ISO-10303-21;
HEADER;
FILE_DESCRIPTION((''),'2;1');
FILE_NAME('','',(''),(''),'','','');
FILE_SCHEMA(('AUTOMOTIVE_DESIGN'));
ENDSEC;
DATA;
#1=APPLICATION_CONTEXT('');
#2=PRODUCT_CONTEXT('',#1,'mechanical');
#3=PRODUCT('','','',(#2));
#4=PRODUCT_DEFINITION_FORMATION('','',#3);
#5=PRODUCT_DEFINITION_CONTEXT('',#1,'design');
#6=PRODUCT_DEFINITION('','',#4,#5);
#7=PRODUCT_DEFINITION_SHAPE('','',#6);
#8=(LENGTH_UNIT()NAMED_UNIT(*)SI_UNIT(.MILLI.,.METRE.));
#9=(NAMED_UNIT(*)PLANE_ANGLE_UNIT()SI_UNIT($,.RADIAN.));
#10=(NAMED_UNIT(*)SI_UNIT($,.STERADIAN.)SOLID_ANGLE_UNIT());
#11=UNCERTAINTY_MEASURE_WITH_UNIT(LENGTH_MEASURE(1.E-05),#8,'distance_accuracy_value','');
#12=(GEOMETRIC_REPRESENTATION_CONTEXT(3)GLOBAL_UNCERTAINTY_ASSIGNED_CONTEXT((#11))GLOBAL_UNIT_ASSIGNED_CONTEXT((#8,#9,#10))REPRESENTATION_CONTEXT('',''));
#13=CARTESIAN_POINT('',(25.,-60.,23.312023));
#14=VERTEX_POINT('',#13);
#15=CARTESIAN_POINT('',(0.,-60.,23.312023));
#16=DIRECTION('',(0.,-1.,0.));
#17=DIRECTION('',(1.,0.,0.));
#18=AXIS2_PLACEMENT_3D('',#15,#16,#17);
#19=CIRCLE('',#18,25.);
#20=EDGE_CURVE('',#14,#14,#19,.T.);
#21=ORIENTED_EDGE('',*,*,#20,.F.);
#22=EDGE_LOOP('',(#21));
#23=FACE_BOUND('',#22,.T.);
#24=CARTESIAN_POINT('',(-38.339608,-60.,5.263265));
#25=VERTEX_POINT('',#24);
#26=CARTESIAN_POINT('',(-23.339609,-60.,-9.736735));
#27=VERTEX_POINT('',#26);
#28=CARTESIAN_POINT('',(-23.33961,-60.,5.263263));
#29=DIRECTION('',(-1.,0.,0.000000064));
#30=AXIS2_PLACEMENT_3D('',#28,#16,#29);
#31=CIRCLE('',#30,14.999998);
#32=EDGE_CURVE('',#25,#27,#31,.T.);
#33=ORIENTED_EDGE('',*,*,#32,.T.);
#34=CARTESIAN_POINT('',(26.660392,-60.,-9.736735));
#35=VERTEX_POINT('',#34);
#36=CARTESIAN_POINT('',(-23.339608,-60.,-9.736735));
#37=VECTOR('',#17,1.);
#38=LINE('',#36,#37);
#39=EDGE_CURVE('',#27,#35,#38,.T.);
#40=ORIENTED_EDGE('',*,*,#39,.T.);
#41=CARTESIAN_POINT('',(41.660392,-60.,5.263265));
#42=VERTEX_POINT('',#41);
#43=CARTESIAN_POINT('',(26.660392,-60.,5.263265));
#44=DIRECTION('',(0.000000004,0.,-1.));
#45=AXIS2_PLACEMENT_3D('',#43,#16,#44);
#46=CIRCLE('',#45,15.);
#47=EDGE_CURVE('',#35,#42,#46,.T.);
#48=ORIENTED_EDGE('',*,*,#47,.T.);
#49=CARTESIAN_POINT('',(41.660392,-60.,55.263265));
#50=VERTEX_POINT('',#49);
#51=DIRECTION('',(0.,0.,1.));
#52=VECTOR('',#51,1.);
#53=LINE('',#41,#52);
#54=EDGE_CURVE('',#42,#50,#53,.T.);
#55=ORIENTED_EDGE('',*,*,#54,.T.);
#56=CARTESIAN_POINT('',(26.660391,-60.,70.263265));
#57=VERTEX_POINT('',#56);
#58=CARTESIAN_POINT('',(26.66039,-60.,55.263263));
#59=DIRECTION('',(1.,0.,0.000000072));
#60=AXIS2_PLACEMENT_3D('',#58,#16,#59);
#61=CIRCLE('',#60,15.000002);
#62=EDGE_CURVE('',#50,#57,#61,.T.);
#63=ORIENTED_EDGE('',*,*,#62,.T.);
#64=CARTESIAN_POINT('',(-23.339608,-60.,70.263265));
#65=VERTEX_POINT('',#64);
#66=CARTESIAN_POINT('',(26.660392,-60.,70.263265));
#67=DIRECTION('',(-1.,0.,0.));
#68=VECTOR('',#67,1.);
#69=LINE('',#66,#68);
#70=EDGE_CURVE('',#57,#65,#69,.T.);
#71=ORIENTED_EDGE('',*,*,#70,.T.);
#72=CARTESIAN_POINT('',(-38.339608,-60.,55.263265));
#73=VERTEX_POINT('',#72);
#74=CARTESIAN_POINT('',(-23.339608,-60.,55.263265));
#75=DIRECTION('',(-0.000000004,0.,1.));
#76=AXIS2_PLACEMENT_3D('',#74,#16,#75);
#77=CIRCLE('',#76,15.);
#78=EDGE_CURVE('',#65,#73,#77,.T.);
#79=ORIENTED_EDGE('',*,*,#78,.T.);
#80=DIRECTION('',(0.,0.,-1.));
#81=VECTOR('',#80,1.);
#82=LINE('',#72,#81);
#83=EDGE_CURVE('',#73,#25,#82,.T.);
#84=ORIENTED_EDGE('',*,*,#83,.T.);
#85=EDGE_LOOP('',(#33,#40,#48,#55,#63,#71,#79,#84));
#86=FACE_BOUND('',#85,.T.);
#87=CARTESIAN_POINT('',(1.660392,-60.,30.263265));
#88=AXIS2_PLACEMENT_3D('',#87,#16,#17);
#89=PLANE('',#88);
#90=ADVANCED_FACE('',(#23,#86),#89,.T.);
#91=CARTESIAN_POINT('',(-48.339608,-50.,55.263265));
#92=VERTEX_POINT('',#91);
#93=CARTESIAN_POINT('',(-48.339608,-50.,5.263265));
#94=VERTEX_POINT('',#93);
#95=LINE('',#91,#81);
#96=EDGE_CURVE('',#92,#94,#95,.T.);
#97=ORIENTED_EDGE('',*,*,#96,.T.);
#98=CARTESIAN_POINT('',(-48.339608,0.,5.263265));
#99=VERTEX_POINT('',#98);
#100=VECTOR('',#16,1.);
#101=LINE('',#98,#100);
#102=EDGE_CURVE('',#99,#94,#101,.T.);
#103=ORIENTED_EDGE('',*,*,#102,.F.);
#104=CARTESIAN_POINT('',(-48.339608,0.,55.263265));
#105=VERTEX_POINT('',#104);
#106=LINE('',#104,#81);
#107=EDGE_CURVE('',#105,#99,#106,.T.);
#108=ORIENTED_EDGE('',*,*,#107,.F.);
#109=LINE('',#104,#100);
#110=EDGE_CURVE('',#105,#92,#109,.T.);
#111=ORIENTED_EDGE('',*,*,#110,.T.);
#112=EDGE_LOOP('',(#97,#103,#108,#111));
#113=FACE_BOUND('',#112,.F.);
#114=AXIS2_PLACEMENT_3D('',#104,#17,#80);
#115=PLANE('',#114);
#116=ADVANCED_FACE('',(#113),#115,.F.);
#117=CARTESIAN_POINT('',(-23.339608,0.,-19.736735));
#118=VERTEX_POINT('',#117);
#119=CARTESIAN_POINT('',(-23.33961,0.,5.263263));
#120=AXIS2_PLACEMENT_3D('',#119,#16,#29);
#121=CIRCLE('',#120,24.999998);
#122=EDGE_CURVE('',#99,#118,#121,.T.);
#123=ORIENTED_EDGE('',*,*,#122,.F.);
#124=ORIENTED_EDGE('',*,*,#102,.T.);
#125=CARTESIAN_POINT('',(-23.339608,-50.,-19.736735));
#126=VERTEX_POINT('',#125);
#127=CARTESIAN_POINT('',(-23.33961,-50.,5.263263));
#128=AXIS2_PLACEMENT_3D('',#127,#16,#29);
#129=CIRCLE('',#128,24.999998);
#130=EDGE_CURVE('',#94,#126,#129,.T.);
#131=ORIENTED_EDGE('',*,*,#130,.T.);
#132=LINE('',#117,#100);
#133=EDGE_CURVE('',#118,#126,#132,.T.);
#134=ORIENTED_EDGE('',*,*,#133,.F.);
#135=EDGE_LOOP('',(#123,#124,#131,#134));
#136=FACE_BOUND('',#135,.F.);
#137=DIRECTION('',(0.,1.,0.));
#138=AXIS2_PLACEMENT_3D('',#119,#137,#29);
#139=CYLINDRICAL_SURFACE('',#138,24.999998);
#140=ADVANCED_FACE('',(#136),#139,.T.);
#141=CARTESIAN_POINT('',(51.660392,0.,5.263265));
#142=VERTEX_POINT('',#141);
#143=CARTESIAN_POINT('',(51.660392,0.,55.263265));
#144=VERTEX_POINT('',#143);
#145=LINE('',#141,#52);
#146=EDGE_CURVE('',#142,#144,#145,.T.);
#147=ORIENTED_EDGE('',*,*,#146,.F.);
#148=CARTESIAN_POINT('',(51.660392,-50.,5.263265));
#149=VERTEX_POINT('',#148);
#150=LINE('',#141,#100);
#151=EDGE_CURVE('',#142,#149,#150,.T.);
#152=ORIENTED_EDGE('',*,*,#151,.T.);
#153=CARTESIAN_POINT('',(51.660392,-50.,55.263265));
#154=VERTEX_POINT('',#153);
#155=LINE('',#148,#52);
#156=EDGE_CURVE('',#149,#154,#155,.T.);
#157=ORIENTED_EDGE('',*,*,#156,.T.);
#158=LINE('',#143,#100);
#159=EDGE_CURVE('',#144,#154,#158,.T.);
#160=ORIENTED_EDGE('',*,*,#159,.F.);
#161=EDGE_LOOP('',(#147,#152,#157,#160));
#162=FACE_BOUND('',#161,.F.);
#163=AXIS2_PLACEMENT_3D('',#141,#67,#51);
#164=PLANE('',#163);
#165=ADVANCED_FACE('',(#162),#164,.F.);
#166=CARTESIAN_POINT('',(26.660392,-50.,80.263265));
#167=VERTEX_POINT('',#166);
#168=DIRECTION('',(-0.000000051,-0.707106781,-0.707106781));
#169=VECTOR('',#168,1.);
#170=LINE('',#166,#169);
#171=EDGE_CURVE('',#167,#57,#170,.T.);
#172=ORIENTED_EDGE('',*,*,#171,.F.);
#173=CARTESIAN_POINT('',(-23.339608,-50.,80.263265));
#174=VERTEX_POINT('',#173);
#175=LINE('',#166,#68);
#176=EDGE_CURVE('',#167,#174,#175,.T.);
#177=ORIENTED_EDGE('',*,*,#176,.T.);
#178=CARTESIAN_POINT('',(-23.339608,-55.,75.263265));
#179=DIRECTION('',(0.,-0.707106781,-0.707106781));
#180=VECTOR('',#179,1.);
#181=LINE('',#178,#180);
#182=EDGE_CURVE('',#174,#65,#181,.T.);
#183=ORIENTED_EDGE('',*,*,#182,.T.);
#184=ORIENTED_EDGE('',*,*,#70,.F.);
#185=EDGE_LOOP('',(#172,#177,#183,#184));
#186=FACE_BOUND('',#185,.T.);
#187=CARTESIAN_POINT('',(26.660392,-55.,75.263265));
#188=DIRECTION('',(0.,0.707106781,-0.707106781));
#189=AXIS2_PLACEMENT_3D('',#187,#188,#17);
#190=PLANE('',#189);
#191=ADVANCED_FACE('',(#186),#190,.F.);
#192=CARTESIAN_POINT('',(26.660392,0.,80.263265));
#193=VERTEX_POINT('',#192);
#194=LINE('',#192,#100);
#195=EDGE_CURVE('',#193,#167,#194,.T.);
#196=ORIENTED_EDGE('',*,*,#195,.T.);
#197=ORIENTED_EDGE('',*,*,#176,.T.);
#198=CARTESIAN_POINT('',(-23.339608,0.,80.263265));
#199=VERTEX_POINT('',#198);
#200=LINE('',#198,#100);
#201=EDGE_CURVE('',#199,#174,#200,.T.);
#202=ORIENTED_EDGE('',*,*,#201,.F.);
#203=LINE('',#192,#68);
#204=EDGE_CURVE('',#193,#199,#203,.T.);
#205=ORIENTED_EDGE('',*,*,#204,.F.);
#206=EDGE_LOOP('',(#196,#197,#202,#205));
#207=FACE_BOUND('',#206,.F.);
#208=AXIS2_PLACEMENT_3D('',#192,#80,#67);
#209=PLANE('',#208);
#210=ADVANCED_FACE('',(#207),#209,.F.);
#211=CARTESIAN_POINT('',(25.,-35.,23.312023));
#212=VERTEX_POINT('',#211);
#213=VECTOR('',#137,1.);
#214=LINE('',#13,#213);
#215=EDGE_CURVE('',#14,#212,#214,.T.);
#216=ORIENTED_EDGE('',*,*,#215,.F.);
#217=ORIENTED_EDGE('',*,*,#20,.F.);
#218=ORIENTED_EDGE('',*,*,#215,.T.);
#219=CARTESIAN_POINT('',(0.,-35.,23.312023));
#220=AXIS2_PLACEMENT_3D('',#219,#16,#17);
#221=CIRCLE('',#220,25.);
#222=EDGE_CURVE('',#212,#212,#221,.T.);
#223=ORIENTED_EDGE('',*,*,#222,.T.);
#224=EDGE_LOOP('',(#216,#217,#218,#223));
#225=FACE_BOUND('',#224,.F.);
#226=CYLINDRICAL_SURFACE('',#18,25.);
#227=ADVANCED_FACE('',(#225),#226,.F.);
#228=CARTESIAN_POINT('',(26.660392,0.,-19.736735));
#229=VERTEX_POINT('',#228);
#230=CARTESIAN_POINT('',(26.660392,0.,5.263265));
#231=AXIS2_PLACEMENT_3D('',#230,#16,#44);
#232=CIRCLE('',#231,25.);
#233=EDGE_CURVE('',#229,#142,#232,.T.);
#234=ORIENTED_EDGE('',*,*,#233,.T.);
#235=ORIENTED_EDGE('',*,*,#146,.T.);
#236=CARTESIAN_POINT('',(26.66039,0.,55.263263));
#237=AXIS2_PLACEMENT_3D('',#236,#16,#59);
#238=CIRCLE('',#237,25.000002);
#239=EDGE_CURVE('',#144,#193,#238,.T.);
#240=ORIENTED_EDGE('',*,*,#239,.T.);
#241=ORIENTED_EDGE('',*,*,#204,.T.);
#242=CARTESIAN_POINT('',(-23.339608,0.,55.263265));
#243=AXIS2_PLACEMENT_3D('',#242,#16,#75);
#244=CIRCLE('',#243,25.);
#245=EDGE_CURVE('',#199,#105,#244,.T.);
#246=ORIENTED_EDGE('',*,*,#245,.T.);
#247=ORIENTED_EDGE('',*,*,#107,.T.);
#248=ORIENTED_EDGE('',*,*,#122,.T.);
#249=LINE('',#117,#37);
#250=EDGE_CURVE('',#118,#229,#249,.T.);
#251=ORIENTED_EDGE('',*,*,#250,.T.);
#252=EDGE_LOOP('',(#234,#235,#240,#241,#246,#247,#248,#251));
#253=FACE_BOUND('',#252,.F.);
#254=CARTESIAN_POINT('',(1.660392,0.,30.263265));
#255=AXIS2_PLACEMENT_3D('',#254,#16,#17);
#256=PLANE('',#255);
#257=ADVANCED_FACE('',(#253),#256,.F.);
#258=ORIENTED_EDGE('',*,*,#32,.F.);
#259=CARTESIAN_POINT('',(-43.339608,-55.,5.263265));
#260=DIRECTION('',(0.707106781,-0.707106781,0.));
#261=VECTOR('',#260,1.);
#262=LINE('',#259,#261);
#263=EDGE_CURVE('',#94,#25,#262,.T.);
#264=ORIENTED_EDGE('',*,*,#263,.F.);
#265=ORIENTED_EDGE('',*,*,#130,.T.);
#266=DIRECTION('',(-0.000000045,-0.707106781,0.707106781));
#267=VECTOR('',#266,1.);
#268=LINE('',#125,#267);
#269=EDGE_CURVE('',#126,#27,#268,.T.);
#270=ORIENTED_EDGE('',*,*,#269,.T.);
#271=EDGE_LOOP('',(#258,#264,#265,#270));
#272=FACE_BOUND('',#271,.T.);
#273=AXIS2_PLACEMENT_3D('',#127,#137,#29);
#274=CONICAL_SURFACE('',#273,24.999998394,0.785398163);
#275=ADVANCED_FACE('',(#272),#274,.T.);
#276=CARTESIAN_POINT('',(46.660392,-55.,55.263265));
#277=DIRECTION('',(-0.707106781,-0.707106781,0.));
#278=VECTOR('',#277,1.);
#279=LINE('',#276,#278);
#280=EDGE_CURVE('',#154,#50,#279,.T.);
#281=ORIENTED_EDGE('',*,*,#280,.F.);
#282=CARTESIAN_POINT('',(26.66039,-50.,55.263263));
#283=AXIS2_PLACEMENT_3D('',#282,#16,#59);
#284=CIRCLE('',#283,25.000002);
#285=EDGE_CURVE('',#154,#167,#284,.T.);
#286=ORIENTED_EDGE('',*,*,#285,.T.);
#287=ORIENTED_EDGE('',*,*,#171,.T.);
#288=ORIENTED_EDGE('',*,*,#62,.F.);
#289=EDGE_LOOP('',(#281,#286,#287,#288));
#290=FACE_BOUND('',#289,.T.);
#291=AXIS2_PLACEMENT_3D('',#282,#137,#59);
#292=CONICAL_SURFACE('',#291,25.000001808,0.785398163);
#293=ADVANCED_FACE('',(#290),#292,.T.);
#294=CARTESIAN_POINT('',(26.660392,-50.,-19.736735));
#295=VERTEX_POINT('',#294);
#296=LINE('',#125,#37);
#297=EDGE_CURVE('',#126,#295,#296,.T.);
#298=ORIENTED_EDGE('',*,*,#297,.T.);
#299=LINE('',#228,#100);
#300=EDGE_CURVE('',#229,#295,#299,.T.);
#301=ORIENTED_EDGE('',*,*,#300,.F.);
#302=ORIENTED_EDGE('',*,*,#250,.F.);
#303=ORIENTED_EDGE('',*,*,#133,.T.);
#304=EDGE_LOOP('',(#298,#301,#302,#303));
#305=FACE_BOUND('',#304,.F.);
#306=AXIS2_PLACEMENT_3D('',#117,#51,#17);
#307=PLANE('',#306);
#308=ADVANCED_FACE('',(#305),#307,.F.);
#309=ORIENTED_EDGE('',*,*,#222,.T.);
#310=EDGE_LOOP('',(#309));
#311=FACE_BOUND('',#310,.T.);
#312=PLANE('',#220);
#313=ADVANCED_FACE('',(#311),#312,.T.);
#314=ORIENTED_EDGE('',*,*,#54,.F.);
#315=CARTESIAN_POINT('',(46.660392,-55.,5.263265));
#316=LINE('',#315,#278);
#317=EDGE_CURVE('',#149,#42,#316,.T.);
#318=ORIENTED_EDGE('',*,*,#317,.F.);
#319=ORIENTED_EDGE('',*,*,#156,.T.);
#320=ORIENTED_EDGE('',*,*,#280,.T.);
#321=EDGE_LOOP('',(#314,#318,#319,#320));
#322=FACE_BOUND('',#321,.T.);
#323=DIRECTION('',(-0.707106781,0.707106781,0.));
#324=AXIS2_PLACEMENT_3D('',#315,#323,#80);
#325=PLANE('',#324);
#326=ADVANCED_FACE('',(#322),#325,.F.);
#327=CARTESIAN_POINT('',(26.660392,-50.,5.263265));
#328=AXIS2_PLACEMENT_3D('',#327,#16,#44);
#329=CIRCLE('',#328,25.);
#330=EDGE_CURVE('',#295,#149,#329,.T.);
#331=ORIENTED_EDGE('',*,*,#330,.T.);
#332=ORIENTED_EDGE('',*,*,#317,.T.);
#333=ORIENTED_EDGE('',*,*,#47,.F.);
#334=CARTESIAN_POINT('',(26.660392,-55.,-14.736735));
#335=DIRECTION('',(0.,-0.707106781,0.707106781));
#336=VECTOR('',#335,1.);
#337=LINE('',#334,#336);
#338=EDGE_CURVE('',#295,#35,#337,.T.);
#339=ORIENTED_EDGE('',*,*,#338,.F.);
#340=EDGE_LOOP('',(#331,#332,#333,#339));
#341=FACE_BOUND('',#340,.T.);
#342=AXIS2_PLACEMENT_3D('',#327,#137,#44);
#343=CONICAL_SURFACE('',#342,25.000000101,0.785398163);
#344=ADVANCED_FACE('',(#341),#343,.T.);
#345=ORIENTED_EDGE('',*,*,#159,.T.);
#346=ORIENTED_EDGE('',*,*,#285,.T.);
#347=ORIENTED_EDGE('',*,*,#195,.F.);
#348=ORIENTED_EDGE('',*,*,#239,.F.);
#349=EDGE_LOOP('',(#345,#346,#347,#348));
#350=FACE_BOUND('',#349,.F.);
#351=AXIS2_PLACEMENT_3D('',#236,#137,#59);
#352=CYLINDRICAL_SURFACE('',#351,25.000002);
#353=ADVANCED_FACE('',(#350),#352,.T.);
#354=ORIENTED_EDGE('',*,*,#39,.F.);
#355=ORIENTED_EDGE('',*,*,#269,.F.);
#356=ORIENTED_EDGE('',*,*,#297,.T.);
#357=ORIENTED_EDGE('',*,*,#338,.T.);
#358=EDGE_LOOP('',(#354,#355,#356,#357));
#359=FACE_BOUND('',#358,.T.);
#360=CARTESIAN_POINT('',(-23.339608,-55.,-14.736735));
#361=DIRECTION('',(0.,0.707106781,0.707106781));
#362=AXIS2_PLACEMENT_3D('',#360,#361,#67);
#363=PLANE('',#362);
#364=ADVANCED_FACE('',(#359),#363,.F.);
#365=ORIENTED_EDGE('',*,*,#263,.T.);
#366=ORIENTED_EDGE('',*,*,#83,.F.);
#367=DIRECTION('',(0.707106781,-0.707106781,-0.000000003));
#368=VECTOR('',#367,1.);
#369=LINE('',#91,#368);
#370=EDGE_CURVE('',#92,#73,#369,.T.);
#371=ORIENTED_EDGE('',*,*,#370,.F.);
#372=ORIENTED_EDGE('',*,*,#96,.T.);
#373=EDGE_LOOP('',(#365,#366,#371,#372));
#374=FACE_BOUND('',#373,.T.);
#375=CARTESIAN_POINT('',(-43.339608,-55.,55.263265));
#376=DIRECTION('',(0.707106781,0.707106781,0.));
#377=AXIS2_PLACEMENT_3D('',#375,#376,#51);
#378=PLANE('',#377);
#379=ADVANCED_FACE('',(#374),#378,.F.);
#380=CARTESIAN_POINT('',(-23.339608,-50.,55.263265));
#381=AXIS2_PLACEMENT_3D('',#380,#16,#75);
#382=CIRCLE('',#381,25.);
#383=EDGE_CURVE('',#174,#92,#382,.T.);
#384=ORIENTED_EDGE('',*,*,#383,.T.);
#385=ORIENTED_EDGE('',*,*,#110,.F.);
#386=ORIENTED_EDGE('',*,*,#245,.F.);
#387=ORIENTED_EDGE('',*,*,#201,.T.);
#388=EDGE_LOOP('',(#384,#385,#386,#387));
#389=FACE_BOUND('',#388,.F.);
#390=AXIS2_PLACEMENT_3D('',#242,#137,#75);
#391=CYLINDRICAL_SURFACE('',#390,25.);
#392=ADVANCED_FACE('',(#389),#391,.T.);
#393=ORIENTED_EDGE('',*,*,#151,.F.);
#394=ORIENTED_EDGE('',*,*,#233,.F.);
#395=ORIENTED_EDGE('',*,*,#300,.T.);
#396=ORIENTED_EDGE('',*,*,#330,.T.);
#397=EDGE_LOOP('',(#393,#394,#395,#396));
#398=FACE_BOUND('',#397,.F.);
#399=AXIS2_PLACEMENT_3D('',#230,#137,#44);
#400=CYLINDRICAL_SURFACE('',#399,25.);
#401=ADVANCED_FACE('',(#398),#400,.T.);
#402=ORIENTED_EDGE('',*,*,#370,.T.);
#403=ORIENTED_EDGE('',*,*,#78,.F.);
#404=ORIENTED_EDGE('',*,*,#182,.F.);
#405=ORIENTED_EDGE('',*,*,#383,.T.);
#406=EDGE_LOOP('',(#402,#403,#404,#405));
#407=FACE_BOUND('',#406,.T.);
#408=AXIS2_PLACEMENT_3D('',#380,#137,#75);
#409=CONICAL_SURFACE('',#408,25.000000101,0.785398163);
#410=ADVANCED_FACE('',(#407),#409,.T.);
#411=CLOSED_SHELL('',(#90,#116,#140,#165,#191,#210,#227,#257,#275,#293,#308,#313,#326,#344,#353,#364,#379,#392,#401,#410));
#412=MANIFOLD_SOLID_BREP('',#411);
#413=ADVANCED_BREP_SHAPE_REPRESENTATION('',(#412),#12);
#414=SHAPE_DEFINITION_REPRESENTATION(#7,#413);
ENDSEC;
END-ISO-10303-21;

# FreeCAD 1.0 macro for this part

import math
import FreeCAD as App
import Part
import Sketcher

V = App.Vector
Q = App.Units.Quantity


def edges_at(feature, points):
    """Names of the edges that pass closest to the given points."""
    edges = feature.Shape.Edges
    near = lambda p: min(range(len(edges)), key=lambda i: edges[i].distToShape(Part.Vertex(*p))[0])
    return sorted({f"Edge{near(p) + 1}" for p in points})

doc = App.newDocument("Part")
body = doc.addObject("PartDesign::Body", "Body")

sketch1 = body.newObject("Sketcher::SketchObject", "Sketch")
sketch1.AttachmentSupport = (doc.getObject("XZ_Plane"), [""])
sketch1.MapMode = "FlatFace"
sketch1.addGeometry([
    Part.LineSegment(V(27, 80, 0), V(-23, 80, 0)),
    Part.ArcOfCircle(Part.Circle(V(-23, 55, 0), V(0, 0, 1), 25), math.radians(90), math.radians(180)),
    Part.LineSegment(V(-48, 55, 0), V(-48, 5, 0)),
    Part.ArcOfCircle(Part.Circle(V(-23, 5, 0), V(0, 0, 1), 25), math.radians(180), math.radians(270)),
    Part.LineSegment(V(-23, -20, 0), V(27, -20, 0)),
    Part.ArcOfCircle(Part.Circle(V(27, 5, 0), V(0, 0, 1), 25), math.radians(-90), math.radians(0)),
    Part.LineSegment(V(52, 5, 0), V(52, 55, 0)),
    Part.ArcOfCircle(Part.Circle(V(27, 55, 0), V(0, 0, 1), 25), math.radians(0), math.radians(90)),
], False)
sketch1.addConstraint([
    Sketcher.Constraint("Tangent", 0, 2, 1, 1),
    Sketcher.Constraint("Tangent", 1, 2, 2, 1),
    Sketcher.Constraint("Tangent", 2, 2, 3, 1),
    Sketcher.Constraint("Tangent", 3, 2, 4, 1),
    Sketcher.Constraint("Tangent", 4, 2, 5, 1),
    Sketcher.Constraint("Tangent", 5, 2, 6, 1),
    Sketcher.Constraint("Tangent", 6, 2, 7, 1),
    Sketcher.Constraint("Tangent", 7, 2, 0, 1),
    Sketcher.Constraint("Horizontal", 0),
    Sketcher.Constraint("Vertical", 2),
    Sketcher.Constraint("Horizontal", 4),
    Sketcher.Constraint("Vertical", 6),
    Sketcher.Constraint("Equal", 1, 3),
    Sketcher.Constraint("Equal", 3, 5),
    Sketcher.Constraint("Equal", 5, 7),
    Sketcher.Constraint("Equal", 4, 2),
    Sketcher.Constraint("Radius", 1, Q("25 mm")),
    Sketcher.Constraint("DistanceX", 0, 2, 0, 1, Q("50 mm")),
    Sketcher.Constraint("DistanceX", 3, 3, -1, 1, Q("23.33961 mm")),
    Sketcher.Constraint("DistanceY", -1, 1, 1, 3, Q("55.263265 mm")),
])
pad1 = body.newObject("PartDesign::Pad", "Pad")
pad1.Profile = sketch1
pad1.Length = 60
doc.recompute()

chamfer = body.newObject("PartDesign::Chamfer", "Chamfer")
chamfer.Base = (pad1, edges_at(pad1, [
    (51.66, -60, 30.263),
    (44.338, -60, 72.941),
    (1.66, -60, 80.263),
    (-41.017, -60, 72.941),
    (-48.34, -60, 30.263),
    (-41.017, -60, -12.414),
    (1.66, -60, -19.737),
    (44.338, -60, -12.414),
]))
chamfer.Size = 10

sketch2 = body.newObject("Sketcher::SketchObject", "Sketch001")
sketch2.AttachmentSupport = (doc.getObject("XZ_Plane"), [""])
sketch2.MapMode = "FlatFace"
sketch2.AttachmentOffset = App.Placement(V(0, 0, 60), App.Rotation())
sketch2.addGeometry(Part.Circle(V(0, 23, 0), V(0, 0, 1), 25), False)
sketch2.addConstraint([
    Sketcher.Constraint("PointOnObject", 0, 3, -2),
    Sketcher.Constraint("Diameter", 0, Q("50 mm")),
    Sketcher.Constraint("DistanceY", -1, 1, 0, 3, Q("23.312023 mm")),
])
pocket1 = body.newObject("PartDesign::Pocket", "Pocket")
pocket1.Profile = sketch2
pocket1.Length = 25

doc.recompute()
